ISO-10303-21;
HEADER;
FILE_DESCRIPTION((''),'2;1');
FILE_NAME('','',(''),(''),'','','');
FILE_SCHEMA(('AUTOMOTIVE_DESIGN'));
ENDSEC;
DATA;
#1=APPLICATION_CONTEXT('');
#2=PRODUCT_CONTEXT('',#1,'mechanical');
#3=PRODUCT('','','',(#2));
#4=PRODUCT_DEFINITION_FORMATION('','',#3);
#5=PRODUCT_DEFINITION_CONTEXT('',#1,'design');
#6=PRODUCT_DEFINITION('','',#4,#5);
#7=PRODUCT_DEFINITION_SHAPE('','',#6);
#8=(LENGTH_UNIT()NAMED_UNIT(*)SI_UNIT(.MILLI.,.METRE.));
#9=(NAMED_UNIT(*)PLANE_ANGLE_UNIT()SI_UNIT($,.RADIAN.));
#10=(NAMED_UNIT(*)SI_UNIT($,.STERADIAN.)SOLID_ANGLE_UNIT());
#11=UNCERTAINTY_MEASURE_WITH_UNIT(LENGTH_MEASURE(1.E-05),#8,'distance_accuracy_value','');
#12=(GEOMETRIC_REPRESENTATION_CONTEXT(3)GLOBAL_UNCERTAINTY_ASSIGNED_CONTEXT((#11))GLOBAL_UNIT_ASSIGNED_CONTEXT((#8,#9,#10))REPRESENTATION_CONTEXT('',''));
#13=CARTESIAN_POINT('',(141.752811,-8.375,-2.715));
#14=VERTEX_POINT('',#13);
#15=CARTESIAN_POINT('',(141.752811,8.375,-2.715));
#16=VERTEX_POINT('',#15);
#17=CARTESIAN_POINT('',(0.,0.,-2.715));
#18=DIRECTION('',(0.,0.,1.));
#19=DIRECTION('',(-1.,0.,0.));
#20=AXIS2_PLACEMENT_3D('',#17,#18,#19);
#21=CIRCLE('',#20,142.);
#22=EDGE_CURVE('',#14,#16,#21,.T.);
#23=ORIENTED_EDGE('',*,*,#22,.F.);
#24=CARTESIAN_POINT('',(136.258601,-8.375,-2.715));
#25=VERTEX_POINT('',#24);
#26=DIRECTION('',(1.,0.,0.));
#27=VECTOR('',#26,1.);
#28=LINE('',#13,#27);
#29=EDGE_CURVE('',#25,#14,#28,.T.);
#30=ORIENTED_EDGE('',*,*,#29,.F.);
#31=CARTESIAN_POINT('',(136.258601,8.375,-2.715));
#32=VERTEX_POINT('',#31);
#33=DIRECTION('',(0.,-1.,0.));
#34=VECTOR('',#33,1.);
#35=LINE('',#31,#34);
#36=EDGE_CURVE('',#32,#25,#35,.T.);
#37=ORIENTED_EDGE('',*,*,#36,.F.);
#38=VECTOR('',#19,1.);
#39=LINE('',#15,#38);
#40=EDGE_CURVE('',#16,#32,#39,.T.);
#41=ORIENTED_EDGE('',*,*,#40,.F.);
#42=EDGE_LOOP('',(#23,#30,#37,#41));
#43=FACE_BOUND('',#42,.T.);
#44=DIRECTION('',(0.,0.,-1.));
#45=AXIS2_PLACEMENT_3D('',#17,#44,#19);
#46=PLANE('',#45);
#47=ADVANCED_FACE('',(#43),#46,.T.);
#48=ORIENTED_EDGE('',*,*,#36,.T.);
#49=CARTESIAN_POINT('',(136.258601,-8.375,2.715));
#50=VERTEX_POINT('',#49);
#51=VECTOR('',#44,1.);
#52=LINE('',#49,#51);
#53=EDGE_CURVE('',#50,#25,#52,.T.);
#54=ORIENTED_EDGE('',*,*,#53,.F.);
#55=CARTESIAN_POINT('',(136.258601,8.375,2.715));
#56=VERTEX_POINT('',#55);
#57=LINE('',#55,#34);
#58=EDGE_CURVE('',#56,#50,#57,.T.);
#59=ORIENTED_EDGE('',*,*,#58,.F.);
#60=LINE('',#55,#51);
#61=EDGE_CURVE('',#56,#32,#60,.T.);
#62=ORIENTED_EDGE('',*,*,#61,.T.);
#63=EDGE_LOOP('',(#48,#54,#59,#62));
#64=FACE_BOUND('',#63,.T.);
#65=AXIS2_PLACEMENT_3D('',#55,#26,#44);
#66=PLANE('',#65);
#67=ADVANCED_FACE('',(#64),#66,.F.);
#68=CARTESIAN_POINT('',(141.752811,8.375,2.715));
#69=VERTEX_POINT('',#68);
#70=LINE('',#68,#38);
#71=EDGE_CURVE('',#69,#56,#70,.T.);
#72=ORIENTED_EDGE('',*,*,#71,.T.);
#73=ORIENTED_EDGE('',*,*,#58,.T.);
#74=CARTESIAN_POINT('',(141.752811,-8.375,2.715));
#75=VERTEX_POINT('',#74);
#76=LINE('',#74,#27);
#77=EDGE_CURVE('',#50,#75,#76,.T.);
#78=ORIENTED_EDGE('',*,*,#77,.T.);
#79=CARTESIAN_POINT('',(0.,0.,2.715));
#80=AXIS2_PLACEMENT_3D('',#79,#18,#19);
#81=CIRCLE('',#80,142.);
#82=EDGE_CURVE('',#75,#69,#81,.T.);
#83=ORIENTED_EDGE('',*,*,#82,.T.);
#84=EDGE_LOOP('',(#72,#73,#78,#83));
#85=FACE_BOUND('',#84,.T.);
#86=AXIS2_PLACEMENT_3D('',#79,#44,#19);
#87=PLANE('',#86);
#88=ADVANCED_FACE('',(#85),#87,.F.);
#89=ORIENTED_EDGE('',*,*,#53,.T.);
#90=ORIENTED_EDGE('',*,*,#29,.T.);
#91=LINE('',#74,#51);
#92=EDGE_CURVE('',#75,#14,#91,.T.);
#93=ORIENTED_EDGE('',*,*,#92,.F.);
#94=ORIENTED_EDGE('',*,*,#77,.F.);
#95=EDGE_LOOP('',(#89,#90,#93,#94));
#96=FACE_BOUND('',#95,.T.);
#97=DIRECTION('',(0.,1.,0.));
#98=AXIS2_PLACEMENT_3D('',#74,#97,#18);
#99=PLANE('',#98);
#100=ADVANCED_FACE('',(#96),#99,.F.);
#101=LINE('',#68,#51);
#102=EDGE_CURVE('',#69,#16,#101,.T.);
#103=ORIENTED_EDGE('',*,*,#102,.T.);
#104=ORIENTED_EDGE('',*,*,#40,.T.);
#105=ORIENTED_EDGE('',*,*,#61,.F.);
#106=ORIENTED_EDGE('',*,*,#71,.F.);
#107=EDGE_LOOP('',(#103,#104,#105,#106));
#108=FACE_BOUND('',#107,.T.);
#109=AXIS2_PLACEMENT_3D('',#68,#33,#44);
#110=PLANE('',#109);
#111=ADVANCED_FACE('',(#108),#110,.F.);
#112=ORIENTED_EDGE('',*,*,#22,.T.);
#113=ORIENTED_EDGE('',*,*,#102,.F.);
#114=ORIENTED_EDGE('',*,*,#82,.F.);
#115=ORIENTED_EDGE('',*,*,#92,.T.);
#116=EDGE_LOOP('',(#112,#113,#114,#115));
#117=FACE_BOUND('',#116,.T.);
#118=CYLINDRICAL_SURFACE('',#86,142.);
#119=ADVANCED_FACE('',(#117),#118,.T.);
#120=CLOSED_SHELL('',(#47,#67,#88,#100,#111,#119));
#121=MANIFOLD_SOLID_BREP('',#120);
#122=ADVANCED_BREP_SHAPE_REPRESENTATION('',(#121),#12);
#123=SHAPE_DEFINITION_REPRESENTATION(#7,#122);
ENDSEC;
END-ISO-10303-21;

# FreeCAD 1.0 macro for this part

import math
import FreeCAD as App
import Part
import Sketcher

V = App.Vector

doc = App.newDocument("Part")
body = doc.addObject("PartDesign::Body", "Body")

# Sketch on XY plane
sketch1 = body.newObject("Sketcher::SketchObject", "Sketch")
sketch1.AttachmentSupport = (doc.getObject("XY_Plane"), [""])
sketch1.MapMode = "FlatFace"
sketch1.addGeometry(Part.LineSegment(V(142, 8, 0), V(136, 8, 0)), False)
sketch1.addGeometry(Part.LineSegment(V(136, 8, 0), V(136, -8, 0)), False)
sketch1.addGeometry(Part.LineSegment(V(136, -8, 0), V(142, -8, 0)), False)
sketch1.addGeometry(Part.ArcOfCircle(Part.Circle(V(0, 0, 0), V(0, 0, 1), 142), math.radians(-3.38), math.radians(3.38)), False)
sketch1.addConstraint(Sketcher.Constraint("Coincident", 0, 2, 1, 1))
sketch1.addConstraint(Sketcher.Constraint("Coincident", 1, 2, 2, 1))
sketch1.addConstraint(Sketcher.Constraint("Coincident", 2, 2, 3, 1))
sketch1.addConstraint(Sketcher.Constraint("Coincident", 3, 2, 0, 1))
sketch1.addConstraint(Sketcher.Constraint("Horizontal", 0))
sketch1.addConstraint(Sketcher.Constraint("Vertical", 1))
sketch1.addConstraint(Sketcher.Constraint("Horizontal", 2))
sketch1.addConstraint(Sketcher.Constraint("Coincident", 3, 3, -1, 1))
sketch1.addConstraint(Sketcher.Constraint("Vertical", 2, 2, 3, 2))
sketch1.addConstraint(Sketcher.Constraint("Radius", 3, 142.0))
sketch1.addConstraint(Sketcher.Constraint("DistanceY", 1, 2, 1, 1, 16.75))
sketch1.addConstraint(Sketcher.Constraint("DistanceX", 0, 2, 0, 1, 5.49421))
pad1 = body.newObject("PartDesign::Pad", "Pad")
pad1.Profile = sketch1
pad1.Length = 5.43
pad1.Midplane = True

doc.recompute()
